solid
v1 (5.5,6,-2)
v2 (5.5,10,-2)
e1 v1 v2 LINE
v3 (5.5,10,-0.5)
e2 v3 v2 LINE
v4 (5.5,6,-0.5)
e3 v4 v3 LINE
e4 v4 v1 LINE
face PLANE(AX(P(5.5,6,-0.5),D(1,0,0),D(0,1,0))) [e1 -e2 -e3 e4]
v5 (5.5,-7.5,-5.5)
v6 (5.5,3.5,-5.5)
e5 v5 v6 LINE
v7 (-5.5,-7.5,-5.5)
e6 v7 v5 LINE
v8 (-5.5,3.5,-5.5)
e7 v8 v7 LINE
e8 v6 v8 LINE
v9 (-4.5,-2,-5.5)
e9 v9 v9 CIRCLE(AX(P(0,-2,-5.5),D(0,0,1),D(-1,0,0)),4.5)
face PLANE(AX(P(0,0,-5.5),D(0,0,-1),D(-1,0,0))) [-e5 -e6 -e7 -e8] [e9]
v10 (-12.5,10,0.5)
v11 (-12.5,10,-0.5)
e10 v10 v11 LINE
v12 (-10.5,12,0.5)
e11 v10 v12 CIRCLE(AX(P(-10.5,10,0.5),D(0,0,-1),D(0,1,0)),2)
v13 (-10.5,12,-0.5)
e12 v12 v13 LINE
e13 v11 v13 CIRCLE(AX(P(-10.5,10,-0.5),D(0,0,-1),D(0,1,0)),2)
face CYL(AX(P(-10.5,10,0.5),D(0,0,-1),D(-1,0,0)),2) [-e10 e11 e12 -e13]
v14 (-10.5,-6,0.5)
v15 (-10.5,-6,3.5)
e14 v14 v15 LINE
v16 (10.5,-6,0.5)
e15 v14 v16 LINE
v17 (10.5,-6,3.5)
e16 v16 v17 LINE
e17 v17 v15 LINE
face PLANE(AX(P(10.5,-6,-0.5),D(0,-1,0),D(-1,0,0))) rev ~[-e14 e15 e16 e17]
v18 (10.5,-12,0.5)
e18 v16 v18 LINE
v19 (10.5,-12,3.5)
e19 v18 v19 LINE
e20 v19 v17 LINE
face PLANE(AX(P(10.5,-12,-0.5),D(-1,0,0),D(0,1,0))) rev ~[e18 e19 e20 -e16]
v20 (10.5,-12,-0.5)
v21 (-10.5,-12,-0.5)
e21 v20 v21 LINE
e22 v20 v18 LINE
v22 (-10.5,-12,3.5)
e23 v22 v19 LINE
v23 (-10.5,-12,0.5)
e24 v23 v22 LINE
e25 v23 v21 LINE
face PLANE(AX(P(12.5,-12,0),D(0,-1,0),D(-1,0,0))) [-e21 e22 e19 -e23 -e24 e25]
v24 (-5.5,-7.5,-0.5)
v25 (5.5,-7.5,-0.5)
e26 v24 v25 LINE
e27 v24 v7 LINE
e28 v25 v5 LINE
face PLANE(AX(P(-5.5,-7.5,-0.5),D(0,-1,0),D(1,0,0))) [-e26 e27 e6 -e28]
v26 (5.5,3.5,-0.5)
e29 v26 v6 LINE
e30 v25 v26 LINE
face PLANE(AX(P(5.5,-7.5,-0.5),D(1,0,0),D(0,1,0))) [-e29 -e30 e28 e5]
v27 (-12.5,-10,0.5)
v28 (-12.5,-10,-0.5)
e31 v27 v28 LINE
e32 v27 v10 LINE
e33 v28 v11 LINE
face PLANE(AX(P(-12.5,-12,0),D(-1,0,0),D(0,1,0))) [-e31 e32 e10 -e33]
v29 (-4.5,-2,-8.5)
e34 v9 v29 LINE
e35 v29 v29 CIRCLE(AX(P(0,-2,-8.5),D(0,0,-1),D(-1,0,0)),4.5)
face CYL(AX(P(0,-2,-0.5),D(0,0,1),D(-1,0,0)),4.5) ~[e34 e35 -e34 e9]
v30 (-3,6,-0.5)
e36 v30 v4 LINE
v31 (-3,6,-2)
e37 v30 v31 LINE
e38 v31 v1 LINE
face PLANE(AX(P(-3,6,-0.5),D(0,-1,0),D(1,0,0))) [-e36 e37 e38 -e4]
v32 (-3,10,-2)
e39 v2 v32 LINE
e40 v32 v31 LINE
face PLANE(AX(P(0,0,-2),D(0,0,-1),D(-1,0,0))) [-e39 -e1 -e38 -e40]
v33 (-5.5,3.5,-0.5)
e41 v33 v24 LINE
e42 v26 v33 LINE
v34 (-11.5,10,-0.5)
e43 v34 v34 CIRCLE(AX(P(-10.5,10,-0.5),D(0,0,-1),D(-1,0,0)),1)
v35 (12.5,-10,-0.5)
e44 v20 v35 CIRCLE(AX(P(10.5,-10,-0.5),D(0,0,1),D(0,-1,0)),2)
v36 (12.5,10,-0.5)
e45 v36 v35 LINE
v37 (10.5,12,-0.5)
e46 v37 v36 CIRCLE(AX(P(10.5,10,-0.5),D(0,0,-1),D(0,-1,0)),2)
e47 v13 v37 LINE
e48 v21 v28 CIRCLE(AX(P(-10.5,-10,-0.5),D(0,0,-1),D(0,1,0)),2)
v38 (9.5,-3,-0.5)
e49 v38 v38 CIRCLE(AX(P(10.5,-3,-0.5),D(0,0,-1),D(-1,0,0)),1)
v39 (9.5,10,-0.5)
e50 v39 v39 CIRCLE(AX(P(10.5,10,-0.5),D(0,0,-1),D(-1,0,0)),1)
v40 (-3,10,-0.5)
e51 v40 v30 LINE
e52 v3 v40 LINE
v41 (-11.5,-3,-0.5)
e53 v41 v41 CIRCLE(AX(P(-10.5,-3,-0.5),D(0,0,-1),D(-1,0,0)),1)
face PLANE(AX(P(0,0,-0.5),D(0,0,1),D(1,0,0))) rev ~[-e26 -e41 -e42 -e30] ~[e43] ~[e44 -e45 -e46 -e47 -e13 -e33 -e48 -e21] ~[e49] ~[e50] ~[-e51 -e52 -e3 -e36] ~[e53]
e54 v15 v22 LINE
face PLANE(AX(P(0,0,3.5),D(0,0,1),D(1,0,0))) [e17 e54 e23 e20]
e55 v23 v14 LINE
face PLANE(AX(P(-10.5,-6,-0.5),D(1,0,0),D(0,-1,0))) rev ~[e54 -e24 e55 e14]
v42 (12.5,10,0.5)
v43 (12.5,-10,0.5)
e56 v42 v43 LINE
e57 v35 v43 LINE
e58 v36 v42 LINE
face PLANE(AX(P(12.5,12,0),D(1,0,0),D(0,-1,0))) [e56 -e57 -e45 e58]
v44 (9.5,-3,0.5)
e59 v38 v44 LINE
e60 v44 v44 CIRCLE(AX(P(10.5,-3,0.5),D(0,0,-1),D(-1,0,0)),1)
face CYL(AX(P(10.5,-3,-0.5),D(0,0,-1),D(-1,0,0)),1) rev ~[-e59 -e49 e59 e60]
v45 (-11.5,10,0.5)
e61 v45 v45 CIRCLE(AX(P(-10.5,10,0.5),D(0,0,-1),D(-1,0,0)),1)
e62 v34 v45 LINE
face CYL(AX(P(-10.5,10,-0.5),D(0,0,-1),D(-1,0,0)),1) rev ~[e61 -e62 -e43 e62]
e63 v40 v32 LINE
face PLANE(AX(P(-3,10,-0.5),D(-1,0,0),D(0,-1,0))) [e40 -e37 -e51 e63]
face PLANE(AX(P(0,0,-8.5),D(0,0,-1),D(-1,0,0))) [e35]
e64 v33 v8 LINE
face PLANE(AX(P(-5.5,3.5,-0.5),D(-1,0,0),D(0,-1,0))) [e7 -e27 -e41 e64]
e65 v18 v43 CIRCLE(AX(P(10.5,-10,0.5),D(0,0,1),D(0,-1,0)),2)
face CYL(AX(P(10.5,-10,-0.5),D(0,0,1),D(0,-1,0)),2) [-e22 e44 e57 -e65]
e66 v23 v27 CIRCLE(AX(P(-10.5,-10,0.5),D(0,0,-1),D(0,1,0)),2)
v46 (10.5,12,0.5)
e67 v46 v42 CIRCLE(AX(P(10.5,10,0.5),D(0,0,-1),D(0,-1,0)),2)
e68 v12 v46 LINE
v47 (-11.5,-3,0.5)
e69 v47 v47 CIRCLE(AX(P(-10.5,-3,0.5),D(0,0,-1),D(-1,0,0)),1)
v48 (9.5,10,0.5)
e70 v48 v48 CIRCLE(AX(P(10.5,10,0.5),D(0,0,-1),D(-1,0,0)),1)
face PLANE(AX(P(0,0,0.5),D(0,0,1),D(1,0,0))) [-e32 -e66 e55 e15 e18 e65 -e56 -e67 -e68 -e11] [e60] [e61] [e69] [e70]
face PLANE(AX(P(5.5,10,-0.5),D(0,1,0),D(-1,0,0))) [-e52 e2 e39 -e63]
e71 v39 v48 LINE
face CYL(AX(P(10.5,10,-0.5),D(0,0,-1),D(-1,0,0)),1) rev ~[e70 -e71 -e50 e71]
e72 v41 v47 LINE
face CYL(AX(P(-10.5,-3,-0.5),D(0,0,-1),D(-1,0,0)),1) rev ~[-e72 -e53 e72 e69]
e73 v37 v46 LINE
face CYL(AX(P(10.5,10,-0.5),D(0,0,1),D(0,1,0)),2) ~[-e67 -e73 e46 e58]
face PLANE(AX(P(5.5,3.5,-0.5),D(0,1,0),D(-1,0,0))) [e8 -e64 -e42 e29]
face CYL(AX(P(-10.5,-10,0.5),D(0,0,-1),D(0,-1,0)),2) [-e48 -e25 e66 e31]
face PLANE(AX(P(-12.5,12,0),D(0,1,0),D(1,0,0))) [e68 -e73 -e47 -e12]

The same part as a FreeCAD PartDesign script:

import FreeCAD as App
import Part
import Sketcher

V = App.Vector
Q = App.Units.Quantity


def edges_at(feature, points):
    """Names of the edges that pass closest to the given points."""
    edges = feature.Shape.Edges
    near = lambda p: min(range(len(edges)), key=lambda i: edges[i].distToShape(Part.Vertex(*p))[0])
    return sorted({f"Edge{near(p) + 1}" for p in points})

doc = App.newDocument("Part")
params = doc.addObject("Spreadsheet::Sheet", "Params")
for row, (alias, value) in enumerate([
    ("sketch1_width", "25 mm"),
    ("sketch1_height", "24 mm"),
    ("pad1_length", "1 mm"),
    ("sketch2_width", "11 mm"),
    ("pad2_length", "5 mm"),
    ("sketch3_diameter", "9 mm"),
    ("pad3_length", "8 mm"),
    ("sketch4_height", "4 mm"),
    ("sketch4_width", "8.5 mm"),
    ("pad4_length", "1.5 mm"),
    ("sketch5_diameter", "2 mm"),
    ("sketch6_width", "21 mm"),
    ("sketch6_height", "6 mm"),
    ("pad5_length", "4 mm"),
    ("fillet_radius", "2 mm"),
], start=1):
    params.set(f"A{row}", alias)
    params.set(f"B{row}", "=" + value)
    params.setAlias(f"B{row}", alias)

body = doc.addObject("PartDesign::Body", "Body")

# Sketch on XY plane
sketch1 = body.newObject("Sketcher::SketchObject", "Sketch")
sketch1.AttachmentSupport = (doc.getObject("XY_Plane"), [""])
sketch1.MapMode = "FlatFace"
sketch1.addGeometry(Part.LineSegment(V(-12, -12, 0), V(12, -12, 0)), False)
sketch1.addGeometry(Part.LineSegment(V(12, -12, 0), V(12, 12, 0)), False)
sketch1.addGeometry(Part.LineSegment(V(12, 12, 0), V(-12, 12, 0)), False)
sketch1.addGeometry(Part.LineSegment(V(-12, 12, 0), V(-12, -12, 0)), False)
sketch1.addConstraint(Sketcher.Constraint("Coincident", 0, 2, 1, 1))
sketch1.addConstraint(Sketcher.Constraint("Coincident", 1, 2, 2, 1))
sketch1.addConstraint(Sketcher.Constraint("Coincident", 2, 2, 3, 1))
sketch1.addConstraint(Sketcher.Constraint("Coincident", 3, 2, 0, 1))
sketch1.addConstraint(Sketcher.Constraint("Horizontal", 0))
sketch1.addConstraint(Sketcher.Constraint("Vertical", 1))
sketch1.addConstraint(Sketcher.Constraint("Horizontal", 2))
sketch1.addConstraint(Sketcher.Constraint("Vertical", 3))
sketch1.addConstraint(Sketcher.Constraint("Symmetric", 0, 2, 2, 2, -1, 1))
sketch1.addConstraint(Sketcher.Constraint("DistanceX", 0, 1, 0, 2, Q("25 mm")))
sketch1.addConstraint(Sketcher.Constraint("DistanceY", 1, 1, 1, 2, Q("24 mm")))
sketch1.setExpression("Constraints[9]", "Params.sketch1_width")
sketch1.setExpression("Constraints[10]", "Params.sketch1_height")
pad1 = body.newObject("PartDesign::Pad", "Pad")
pad1.Profile = sketch1
pad1.setExpression("Length", "Params.pad1_length")
pad1.Midplane = True

# Sketch on XY plane
sketch2 = body.newObject("Sketcher::SketchObject", "Sketch001")
sketch2.AttachmentSupport = (doc.getObject("XY_Plane"), [""])
sketch2.MapMode = "FlatFace"
sketch2.AttachmentOffset = App.Placement(V(0, 0, -0.5), App.Rotation())
sketch2.addGeometry(Part.LineSegment(V(-6, 4, 0), V(6, 4, 0)), False)
sketch2.addGeometry(Part.LineSegment(V(6, 4, 0), V(6, -8, 0)), False)
sketch2.addGeometry(Part.LineSegment(V(6, -8, 0), V(-6, -8, 0)), False)
sketch2.addGeometry(Part.LineSegment(V(-6, -8, 0), V(-6, 4, 0)), False)
sketch2.addConstraint(Sketcher.Constraint("Coincident", 0, 2, 1, 1))
sketch2.addConstraint(Sketcher.Constraint("Coincident", 1, 2, 2, 1))
sketch2.addConstraint(Sketcher.Constraint("Coincident", 2, 2, 3, 1))
sketch2.addConstraint(Sketcher.Constraint("Coincident", 3, 2, 0, 1))
sketch2.addConstraint(Sketcher.Constraint("Horizontal", 0))
sketch2.addConstraint(Sketcher.Constraint("Vertical", 1))
sketch2.addConstraint(Sketcher.Constraint("Horizontal", 2))
sketch2.addConstraint(Sketcher.Constraint("Vertical", 3))
sketch2.addConstraint(Sketcher.Constraint("Equal", 2, 1))
sketch2.addConstraint(Sketcher.Constraint("DistanceX", 0, 1, 0, 2, Q("11 mm")))
sketch2.addConstraint(Sketcher.Constraint("DistanceX", -1, 1, 0, 2, Q("5.5 mm")))
sketch2.addConstraint(Sketcher.Constraint("DistanceY", -1, 1, 0, 2, Q("3.5 mm")))
sketch2.setExpression("Constraints[9]", "Params.sketch2_width")
pad2 = body.newObject("PartDesign::Pad", "Pad001")
pad2.Profile = sketch2
pad2.setExpression("Length", "Params.pad2_length")
pad2.Reversed = True

# Sketch on XY plane
sketch3 = body.newObject("Sketcher::SketchObject", "Sketch002")
sketch3.AttachmentSupport = (doc.getObject("XY_Plane"), [""])
sketch3.MapMode = "FlatFace"
sketch3.AttachmentOffset = App.Placement(V(0, 0, -0.5), App.Rotation())
sketch3.addGeometry(Part.Circle(V(0, -2, 0), V(0, 0, 1), 4.5), False)
sketch3.addConstraint(Sketcher.Constraint("PointOnObject", 0, 3, -2))
sketch3.addConstraint(Sketcher.Constraint("Diameter", 0, Q("9 mm")))
sketch3.addConstraint(Sketcher.Constraint("DistanceY", 0, 3, -1, 1, Q("2 mm")))
sketch3.setExpression("Constraints[1]", "Params.sketch3_diameter")
pad3 = body.newObject("PartDesign::Pad", "Pad002")
pad3.Profile = sketch3
pad3.setExpression("Length", "Params.pad3_length")
pad3.Reversed = True

# Sketch on XY plane
sketch4 = body.newObject("Sketcher::SketchObject", "Sketch003")
sketch4.AttachmentSupport = (doc.getObject("XY_Plane"), [""])
sketch4.MapMode = "FlatFace"
sketch4.AttachmentOffset = App.Placement(V(0, 0, -0.5), App.Rotation())
sketch4.addGeometry(Part.LineSegment(V(5.5, 6, 0), V(-3, 6, 0)), False)
sketch4.addGeometry(Part.LineSegment(V(-3, 6, 0), V(-3, 10, 0)), False)
sketch4.addGeometry(Part.LineSegment(V(-3, 10, 0), V(5.5, 10, 0)), False)
sketch4.addGeometry(Part.LineSegment(V(5.5, 10, 0), V(5.5, 6, 0)), False)
sketch4.addConstraint(Sketcher.Constraint("Coincident", 0, 2, 1, 1))
sketch4.addConstraint(Sketcher.Constraint("Coincident", 1, 2, 2, 1))
sketch4.addConstraint(Sketcher.Constraint("Coincident", 2, 2, 3, 1))
sketch4.addConstraint(Sketcher.Constraint("Coincident", 3, 2, 0, 1))
sketch4.addConstraint(Sketcher.Constraint("Horizontal", 0))
sketch4.addConstraint(Sketcher.Constraint("Vertical", 1))
sketch4.addConstraint(Sketcher.Constraint("Horizontal", 2))
sketch4.addConstraint(Sketcher.Constraint("Vertical", 3))
sketch4.addConstraint(Sketcher.Constraint("DistanceY", 1, 1, 1, 2, Q("4 mm")))
sketch4.addConstraint(Sketcher.Constraint("DistanceX", 0, 2, 0, 1, Q("8.5 mm")))
sketch4.addConstraint(Sketcher.Constraint("DistanceX", 0, 2, -1, 1, Q("3 mm")))
sketch4.addConstraint(Sketcher.Constraint("DistanceY", -1, 1, 0, 2, Q("6 mm")))
sketch4.setExpression("Constraints[8]", "Params.sketch4_height")
sketch4.setExpression("Constraints[9]", "Params.sketch4_width")
pad4 = body.newObject("PartDesign::Pad", "Pad003")
pad4.Profile = sketch4
pad4.setExpression("Length", "Params.pad4_length")
pad4.Reversed = True

# Sketch on XY plane
sketch5 = body.newObject("Sketcher::SketchObject", "Sketch004")
sketch5.AttachmentSupport = (doc.getObject("XY_Plane"), [""])
sketch5.MapMode = "FlatFace"
sketch5.AttachmentOffset = App.Placement(V(0, 0, -0.5), App.Rotation())
sketch5.addGeometry(Part.Circle(V(10.5, 10, 0), V(0, 0, 1), 1), False)
sketch5.addGeometry(Part.Circle(V(-10.5, 10, 0), V(0, 0, 1), 1), False)
sketch5.addGeometry(Part.Circle(V(10.5, -3, 0), V(0, 0, 1), 1), False)
sketch5.addGeometry(Part.Circle(V(-10.5, -3, 0), V(0, 0, 1), 1), False)
sketch5.addConstraint(Sketcher.Constraint("Equal", 0, 1))
sketch5.addConstraint(Sketcher.Constraint("Equal", 1, 2))
sketch5.addConstraint(Sketcher.Constraint("Equal", 2, 3))
sketch5.addConstraint(Sketcher.Constraint("Symmetric", 0, 3, 1, 3, -2))
sketch5.addConstraint(Sketcher.Constraint("Symmetric", 2, 3, 3, 3, -2))
sketch5.addConstraint(Sketcher.Constraint("Vertical", 0, 3, 2, 3))
sketch5.addConstraint(Sketcher.Constraint("Diameter", 0, Q("2 mm")))
sketch5.addConstraint(Sketcher.Constraint("DistanceY", -1, 1, 0, 3, Q("10 mm")))
sketch5.addConstraint(Sketcher.Constraint("DistanceY", 2, 3, -1, 1, Q("3 mm")))
sketch5.addConstraint(Sketcher.Constraint("DistanceX", 1, 3, 0, 3, Q("21 mm")))
sketch5.setExpression("Constraints[6]", "Params.sketch5_diameter")
pocket1 = body.newObject("PartDesign::Pocket", "Pocket")
pocket1.Profile = sketch5
pocket1.Type = "ThroughAll"
pocket1.Reversed = True

# Sketch on XY plane
sketch6 = body.newObject("Sketcher::SketchObject", "Sketch005")
sketch6.AttachmentSupport = (doc.getObject("XY_Plane"), [""])
sketch6.MapMode = "FlatFace"
sketch6.AttachmentOffset = App.Placement(V(0, 0, -0.5), App.Rotation())
sketch6.addGeometry(Part.LineSegment(V(-10, -6, 0), V(-10, -12, 0)), False)
sketch6.addGeometry(Part.LineSegment(V(-10, -12, 0), V(10, -12, 0)), False)
sketch6.addGeometry(Part.LineSegment(V(10, -12, 0), V(10, -6, 0)), False)
sketch6.addGeometry(Part.LineSegment(V(10, -6, 0), V(-10, -6, 0)), False)
sketch6.addConstraint(Sketcher.Constraint("Coincident", 0, 2, 1, 1))
sketch6.addConstraint(Sketcher.Constraint("Coincident", 1, 2, 2, 1))
sketch6.addConstraint(Sketcher.Constraint("Coincident", 2, 2, 3, 1))
sketch6.addConstraint(Sketcher.Constraint("Coincident", 3, 2, 0, 1))
sketch6.addConstraint(Sketcher.Constraint("Vertical", 0))
sketch6.addConstraint(Sketcher.Constraint("Horizontal", 1))
sketch6.addConstraint(Sketcher.Constraint("Vertical", 2))
sketch6.addConstraint(Sketcher.Constraint("Horizontal", 3))
sketch6.addConstraint(Sketcher.Constraint("DistanceX", 1, 1, 1, 2, Q("21 mm")))
sketch6.addConstraint(Sketcher.Constraint("DistanceY", 0, 2, 0, 1, Q("6 mm")))
sketch6.addConstraint(Sketcher.Constraint("DistanceY", 2, 2, -1, 1, Q("6 mm")))
sketch6.addConstraint(Sketcher.Constraint("DistanceX", 0, 2, -1, 1, Q("10.5 mm")))
sketch6.setExpression("Constraints[8]", "Params.sketch6_width")
sketch6.setExpression("Constraints[9]", "Params.sketch6_height")
pad5 = body.newObject("PartDesign::Pad", "Pad004")
pad5.Profile = sketch6
pad5.setExpression("Length", "Params.pad5_length")
doc.recompute()

fillet = body.newObject("PartDesign::Fillet", "Fillet")
fillet.Base = (pad5, edges_at(pad5, [
    (12.5, 12, 0),
    (12.5, -12, 0),
    (-12.5, 12, 0),
    (-12.5, -12, 0),
]))
fillet.setExpression("Radius", "Params.fillet_radius")

doc.recompute()
